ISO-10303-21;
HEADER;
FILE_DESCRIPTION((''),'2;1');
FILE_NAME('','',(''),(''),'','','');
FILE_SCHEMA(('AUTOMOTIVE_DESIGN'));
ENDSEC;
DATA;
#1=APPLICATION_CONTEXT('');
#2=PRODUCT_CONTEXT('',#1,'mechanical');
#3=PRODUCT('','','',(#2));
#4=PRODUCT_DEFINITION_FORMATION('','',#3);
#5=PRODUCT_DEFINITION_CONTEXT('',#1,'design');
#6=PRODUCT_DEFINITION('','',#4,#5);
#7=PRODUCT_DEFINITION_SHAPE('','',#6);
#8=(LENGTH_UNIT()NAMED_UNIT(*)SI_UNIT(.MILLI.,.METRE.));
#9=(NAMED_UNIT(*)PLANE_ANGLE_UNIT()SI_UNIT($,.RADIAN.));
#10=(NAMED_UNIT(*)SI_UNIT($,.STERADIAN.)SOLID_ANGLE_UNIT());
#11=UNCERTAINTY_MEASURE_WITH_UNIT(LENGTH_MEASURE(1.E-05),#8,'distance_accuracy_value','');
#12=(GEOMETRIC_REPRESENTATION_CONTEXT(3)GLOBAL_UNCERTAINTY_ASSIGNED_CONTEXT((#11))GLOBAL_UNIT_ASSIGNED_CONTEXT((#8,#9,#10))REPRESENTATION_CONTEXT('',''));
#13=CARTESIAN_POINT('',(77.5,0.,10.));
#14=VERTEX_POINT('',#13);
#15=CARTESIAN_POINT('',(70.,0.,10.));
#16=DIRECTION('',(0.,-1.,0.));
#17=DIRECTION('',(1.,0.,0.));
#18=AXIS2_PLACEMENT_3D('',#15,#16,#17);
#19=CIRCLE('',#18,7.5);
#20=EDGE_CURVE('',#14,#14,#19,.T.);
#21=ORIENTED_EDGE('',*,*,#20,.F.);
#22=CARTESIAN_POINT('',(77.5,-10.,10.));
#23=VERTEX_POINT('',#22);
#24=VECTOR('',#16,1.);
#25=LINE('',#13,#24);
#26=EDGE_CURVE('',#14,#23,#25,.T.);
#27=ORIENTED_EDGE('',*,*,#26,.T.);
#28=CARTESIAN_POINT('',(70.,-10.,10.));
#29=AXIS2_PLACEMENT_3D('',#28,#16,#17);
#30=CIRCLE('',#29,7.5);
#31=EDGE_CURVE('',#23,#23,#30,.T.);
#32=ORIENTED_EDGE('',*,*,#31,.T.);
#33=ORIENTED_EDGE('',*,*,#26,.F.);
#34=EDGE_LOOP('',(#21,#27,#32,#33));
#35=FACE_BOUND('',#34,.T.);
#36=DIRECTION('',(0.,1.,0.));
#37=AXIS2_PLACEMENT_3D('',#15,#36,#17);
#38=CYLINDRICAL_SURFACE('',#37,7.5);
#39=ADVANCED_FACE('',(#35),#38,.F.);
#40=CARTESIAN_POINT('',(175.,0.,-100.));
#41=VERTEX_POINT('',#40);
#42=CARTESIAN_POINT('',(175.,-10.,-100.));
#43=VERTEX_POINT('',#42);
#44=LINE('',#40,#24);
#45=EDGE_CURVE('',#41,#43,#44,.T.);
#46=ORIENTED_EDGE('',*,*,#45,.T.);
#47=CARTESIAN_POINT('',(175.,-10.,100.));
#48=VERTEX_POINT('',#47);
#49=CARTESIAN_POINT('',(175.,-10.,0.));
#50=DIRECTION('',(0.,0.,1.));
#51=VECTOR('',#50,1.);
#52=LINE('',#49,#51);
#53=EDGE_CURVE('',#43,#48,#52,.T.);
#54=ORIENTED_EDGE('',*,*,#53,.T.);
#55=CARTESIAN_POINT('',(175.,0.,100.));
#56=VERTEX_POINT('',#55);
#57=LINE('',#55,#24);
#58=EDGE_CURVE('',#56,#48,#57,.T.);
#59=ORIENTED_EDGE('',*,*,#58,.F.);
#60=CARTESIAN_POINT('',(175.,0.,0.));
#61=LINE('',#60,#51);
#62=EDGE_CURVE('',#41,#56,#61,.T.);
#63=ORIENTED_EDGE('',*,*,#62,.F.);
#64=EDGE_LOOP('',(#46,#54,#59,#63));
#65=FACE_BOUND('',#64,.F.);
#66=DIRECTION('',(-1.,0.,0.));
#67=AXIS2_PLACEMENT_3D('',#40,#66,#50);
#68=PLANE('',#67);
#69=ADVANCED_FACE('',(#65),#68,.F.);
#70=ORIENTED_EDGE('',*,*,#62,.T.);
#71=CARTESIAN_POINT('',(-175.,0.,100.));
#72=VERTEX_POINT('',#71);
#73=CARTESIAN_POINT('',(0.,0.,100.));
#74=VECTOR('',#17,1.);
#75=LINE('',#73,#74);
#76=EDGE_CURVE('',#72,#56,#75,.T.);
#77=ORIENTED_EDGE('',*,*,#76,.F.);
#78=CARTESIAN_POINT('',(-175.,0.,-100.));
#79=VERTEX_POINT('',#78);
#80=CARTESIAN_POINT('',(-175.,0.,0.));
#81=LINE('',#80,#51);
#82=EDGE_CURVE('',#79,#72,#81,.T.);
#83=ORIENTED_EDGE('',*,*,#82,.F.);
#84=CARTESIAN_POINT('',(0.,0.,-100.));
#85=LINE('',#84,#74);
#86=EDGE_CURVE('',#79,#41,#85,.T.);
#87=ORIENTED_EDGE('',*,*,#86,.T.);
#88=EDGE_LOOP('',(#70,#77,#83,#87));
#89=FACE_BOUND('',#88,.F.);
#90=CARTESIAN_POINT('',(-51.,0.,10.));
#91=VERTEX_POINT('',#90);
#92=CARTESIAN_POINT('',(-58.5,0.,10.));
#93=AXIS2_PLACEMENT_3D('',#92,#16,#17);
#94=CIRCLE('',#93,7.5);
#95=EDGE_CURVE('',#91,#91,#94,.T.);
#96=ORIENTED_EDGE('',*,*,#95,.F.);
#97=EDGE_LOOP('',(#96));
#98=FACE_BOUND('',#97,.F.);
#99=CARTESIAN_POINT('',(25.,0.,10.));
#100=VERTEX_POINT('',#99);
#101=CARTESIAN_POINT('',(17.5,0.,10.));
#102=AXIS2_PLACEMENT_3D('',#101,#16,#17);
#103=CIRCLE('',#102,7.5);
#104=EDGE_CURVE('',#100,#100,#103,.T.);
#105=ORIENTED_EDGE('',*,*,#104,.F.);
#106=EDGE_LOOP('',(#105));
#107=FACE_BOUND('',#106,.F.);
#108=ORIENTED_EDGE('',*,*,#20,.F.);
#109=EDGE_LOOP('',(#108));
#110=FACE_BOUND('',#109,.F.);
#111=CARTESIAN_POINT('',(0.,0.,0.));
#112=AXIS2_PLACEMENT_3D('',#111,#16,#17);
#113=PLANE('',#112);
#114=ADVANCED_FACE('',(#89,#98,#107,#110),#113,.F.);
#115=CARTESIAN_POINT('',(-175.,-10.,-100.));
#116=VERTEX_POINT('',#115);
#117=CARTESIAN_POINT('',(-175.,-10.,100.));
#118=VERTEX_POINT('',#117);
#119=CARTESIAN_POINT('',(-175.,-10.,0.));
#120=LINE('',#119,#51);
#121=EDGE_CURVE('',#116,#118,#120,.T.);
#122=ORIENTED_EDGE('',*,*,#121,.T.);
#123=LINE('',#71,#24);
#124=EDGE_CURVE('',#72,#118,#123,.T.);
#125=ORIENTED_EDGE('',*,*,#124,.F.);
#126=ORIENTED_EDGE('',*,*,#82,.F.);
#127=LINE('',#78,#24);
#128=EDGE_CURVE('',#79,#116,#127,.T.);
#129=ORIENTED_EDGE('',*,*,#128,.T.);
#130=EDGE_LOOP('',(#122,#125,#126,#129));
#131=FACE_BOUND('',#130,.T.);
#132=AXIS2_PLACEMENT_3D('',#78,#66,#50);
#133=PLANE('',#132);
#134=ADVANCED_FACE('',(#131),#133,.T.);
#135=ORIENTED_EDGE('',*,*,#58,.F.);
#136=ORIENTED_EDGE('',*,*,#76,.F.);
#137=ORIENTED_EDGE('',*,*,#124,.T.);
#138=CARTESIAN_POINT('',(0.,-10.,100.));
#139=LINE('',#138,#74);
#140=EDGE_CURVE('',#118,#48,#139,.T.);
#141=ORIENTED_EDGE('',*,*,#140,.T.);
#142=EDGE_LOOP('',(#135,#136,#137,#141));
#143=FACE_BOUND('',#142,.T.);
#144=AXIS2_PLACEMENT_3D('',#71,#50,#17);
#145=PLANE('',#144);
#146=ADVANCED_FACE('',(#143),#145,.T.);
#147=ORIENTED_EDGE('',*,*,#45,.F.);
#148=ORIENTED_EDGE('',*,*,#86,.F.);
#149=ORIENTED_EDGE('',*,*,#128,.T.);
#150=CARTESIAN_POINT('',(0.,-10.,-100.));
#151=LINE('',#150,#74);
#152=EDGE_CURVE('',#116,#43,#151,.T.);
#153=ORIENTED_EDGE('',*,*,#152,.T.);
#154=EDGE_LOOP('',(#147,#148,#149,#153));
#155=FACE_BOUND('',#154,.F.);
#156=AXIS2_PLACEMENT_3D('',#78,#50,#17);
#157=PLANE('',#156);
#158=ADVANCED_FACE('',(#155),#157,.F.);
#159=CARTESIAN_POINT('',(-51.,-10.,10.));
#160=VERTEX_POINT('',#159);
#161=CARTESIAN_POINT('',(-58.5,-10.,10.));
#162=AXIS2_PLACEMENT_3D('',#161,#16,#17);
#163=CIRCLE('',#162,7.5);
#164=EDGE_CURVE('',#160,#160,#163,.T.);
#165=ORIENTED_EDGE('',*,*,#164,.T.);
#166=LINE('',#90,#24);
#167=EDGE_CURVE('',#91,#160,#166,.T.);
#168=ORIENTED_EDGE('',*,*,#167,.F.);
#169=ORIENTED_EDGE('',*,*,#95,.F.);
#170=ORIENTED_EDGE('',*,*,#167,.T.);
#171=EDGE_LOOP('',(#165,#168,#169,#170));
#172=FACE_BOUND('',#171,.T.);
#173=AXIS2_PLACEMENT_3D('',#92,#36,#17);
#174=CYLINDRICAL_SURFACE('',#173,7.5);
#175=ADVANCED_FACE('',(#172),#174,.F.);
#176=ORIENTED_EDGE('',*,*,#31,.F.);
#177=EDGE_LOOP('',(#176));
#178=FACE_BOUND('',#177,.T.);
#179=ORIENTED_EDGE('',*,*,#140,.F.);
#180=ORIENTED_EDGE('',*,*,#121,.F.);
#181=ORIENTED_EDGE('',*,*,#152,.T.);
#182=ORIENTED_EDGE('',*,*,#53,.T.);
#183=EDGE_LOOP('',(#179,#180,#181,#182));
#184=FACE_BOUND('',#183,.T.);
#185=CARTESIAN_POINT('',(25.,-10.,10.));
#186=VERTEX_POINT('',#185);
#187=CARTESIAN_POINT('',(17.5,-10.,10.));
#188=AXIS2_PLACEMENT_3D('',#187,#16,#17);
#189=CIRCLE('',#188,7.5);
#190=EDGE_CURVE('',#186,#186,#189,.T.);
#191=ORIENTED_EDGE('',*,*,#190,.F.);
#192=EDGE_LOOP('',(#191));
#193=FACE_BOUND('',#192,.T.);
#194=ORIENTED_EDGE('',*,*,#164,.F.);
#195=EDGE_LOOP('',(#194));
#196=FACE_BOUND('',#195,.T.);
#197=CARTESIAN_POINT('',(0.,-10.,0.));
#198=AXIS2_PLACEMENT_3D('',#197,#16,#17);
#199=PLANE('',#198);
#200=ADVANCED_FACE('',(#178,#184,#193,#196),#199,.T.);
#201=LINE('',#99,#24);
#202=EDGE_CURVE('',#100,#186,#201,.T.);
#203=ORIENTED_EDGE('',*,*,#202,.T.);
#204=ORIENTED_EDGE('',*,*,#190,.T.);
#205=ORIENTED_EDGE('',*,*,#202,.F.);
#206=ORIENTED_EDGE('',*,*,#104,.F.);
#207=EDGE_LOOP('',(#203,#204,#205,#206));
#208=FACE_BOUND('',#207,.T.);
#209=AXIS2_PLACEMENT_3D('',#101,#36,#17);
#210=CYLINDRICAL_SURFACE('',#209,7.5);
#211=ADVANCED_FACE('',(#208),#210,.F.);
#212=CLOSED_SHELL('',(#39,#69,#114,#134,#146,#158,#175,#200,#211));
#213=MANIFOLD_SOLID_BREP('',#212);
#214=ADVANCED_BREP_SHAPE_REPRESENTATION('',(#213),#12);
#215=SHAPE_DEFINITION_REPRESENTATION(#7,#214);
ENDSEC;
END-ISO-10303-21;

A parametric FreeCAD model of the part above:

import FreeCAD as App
import Part
import Sketcher
from FreeCAD import Vector
Q = App.Units.Quantity

doc = App.newDocument("Part")
params = doc.addObject("Spreadsheet::Sheet", "Params")
for row, (alias, value) in enumerate([
    ("sketch1_diameter", "15 mm"),
    ("sketch1_width", "350 mm"),
    ("sketch1_height", "200 mm"),
    ("pad1_length", "10 mm"),
], start=1):
    params.set(f"A{row}", alias)
    params.set(f"B{row}", "=" + value)
    params.setAlias(f"B{row}", alias)

body = doc.addObject("PartDesign::Body", "Body")

sketch1 = body.newObject("Sketcher::SketchObject", "Sketch")
sketch1.AttachmentSupport = (doc.getObject("XZ_Plane"), [""])
sketch1.MapMode = "FlatFace"
sketch1.addGeometry([
    Part.LineSegment(Vector(-175, 100, 0), Vector(-175, -100, 0)),
    Part.LineSegment(Vector(-175, -100, 0), Vector(175, -100, 0)),
    Part.LineSegment(Vector(175, -100, 0), Vector(175, 100, 0)),
    Part.LineSegment(Vector(175, 100, 0), Vector(-175, 100, 0)),
    Part.Circle(Vector(-58, 10, 0), Vector(0, 0, 1), 8),
    Part.Circle(Vector(18, 10, 0), Vector(0, 0, 1), 8),
    Part.Circle(Vector(70, 10, 0), Vector(0, 0, 1), 8),
], False)
sketch1.addConstraint([
    Sketcher.Constraint("Coincident", 0, 2, 1, 1),
    Sketcher.Constraint("Coincident", 1, 2, 2, 1),
    Sketcher.Constraint("Coincident", 2, 2, 3, 1),
    Sketcher.Constraint("Coincident", 3, 2, 0, 1),
    Sketcher.Constraint("Vertical", 0),
    Sketcher.Constraint("Horizontal", 1),
    Sketcher.Constraint("Vertical", 2),
    Sketcher.Constraint("Horizontal", 3),
    Sketcher.Constraint("Equal", 4, 5),
    Sketcher.Constraint("Equal", 5, 6),
    Sketcher.Constraint("Symmetric", 0, 2, 2, 2, -1, 1),
    Sketcher.Constraint("Horizontal", 4, 3, 5, 3),
    Sketcher.Constraint("Horizontal", 5, 3, 6, 3),
    Sketcher.Constraint("Diameter", 4, Q("15 mm")),
    Sketcher.Constraint("DistanceX", 1, 1, 1, 2, Q("350 mm")),
    Sketcher.Constraint("DistanceY", 0, 2, 0, 1, Q("200 mm")),
    Sketcher.Constraint("DistanceY", -1, 1, 4, 3, Q("10 mm")),
    Sketcher.Constraint("DistanceX", -1, 1, 6, 3, Q("70 mm")),
    Sketcher.Constraint("DistanceX", 4, 3, 5, 3, Q("76 mm")),
    Sketcher.Constraint("DistanceX", 4, 3, -1, 1, Q("58.5 mm")),
])
sketch1.setExpression("Constraints[13]", "Params.sketch1_diameter")
sketch1.setExpression("Constraints[14]", "Params.sketch1_width")
sketch1.setExpression("Constraints[15]", "Params.sketch1_height")
pad1 = body.newObject("PartDesign::Pad", "Pad")
pad1.Profile = sketch1
pad1.setExpression("Length", "Params.pad1_length")

doc.recompute()
